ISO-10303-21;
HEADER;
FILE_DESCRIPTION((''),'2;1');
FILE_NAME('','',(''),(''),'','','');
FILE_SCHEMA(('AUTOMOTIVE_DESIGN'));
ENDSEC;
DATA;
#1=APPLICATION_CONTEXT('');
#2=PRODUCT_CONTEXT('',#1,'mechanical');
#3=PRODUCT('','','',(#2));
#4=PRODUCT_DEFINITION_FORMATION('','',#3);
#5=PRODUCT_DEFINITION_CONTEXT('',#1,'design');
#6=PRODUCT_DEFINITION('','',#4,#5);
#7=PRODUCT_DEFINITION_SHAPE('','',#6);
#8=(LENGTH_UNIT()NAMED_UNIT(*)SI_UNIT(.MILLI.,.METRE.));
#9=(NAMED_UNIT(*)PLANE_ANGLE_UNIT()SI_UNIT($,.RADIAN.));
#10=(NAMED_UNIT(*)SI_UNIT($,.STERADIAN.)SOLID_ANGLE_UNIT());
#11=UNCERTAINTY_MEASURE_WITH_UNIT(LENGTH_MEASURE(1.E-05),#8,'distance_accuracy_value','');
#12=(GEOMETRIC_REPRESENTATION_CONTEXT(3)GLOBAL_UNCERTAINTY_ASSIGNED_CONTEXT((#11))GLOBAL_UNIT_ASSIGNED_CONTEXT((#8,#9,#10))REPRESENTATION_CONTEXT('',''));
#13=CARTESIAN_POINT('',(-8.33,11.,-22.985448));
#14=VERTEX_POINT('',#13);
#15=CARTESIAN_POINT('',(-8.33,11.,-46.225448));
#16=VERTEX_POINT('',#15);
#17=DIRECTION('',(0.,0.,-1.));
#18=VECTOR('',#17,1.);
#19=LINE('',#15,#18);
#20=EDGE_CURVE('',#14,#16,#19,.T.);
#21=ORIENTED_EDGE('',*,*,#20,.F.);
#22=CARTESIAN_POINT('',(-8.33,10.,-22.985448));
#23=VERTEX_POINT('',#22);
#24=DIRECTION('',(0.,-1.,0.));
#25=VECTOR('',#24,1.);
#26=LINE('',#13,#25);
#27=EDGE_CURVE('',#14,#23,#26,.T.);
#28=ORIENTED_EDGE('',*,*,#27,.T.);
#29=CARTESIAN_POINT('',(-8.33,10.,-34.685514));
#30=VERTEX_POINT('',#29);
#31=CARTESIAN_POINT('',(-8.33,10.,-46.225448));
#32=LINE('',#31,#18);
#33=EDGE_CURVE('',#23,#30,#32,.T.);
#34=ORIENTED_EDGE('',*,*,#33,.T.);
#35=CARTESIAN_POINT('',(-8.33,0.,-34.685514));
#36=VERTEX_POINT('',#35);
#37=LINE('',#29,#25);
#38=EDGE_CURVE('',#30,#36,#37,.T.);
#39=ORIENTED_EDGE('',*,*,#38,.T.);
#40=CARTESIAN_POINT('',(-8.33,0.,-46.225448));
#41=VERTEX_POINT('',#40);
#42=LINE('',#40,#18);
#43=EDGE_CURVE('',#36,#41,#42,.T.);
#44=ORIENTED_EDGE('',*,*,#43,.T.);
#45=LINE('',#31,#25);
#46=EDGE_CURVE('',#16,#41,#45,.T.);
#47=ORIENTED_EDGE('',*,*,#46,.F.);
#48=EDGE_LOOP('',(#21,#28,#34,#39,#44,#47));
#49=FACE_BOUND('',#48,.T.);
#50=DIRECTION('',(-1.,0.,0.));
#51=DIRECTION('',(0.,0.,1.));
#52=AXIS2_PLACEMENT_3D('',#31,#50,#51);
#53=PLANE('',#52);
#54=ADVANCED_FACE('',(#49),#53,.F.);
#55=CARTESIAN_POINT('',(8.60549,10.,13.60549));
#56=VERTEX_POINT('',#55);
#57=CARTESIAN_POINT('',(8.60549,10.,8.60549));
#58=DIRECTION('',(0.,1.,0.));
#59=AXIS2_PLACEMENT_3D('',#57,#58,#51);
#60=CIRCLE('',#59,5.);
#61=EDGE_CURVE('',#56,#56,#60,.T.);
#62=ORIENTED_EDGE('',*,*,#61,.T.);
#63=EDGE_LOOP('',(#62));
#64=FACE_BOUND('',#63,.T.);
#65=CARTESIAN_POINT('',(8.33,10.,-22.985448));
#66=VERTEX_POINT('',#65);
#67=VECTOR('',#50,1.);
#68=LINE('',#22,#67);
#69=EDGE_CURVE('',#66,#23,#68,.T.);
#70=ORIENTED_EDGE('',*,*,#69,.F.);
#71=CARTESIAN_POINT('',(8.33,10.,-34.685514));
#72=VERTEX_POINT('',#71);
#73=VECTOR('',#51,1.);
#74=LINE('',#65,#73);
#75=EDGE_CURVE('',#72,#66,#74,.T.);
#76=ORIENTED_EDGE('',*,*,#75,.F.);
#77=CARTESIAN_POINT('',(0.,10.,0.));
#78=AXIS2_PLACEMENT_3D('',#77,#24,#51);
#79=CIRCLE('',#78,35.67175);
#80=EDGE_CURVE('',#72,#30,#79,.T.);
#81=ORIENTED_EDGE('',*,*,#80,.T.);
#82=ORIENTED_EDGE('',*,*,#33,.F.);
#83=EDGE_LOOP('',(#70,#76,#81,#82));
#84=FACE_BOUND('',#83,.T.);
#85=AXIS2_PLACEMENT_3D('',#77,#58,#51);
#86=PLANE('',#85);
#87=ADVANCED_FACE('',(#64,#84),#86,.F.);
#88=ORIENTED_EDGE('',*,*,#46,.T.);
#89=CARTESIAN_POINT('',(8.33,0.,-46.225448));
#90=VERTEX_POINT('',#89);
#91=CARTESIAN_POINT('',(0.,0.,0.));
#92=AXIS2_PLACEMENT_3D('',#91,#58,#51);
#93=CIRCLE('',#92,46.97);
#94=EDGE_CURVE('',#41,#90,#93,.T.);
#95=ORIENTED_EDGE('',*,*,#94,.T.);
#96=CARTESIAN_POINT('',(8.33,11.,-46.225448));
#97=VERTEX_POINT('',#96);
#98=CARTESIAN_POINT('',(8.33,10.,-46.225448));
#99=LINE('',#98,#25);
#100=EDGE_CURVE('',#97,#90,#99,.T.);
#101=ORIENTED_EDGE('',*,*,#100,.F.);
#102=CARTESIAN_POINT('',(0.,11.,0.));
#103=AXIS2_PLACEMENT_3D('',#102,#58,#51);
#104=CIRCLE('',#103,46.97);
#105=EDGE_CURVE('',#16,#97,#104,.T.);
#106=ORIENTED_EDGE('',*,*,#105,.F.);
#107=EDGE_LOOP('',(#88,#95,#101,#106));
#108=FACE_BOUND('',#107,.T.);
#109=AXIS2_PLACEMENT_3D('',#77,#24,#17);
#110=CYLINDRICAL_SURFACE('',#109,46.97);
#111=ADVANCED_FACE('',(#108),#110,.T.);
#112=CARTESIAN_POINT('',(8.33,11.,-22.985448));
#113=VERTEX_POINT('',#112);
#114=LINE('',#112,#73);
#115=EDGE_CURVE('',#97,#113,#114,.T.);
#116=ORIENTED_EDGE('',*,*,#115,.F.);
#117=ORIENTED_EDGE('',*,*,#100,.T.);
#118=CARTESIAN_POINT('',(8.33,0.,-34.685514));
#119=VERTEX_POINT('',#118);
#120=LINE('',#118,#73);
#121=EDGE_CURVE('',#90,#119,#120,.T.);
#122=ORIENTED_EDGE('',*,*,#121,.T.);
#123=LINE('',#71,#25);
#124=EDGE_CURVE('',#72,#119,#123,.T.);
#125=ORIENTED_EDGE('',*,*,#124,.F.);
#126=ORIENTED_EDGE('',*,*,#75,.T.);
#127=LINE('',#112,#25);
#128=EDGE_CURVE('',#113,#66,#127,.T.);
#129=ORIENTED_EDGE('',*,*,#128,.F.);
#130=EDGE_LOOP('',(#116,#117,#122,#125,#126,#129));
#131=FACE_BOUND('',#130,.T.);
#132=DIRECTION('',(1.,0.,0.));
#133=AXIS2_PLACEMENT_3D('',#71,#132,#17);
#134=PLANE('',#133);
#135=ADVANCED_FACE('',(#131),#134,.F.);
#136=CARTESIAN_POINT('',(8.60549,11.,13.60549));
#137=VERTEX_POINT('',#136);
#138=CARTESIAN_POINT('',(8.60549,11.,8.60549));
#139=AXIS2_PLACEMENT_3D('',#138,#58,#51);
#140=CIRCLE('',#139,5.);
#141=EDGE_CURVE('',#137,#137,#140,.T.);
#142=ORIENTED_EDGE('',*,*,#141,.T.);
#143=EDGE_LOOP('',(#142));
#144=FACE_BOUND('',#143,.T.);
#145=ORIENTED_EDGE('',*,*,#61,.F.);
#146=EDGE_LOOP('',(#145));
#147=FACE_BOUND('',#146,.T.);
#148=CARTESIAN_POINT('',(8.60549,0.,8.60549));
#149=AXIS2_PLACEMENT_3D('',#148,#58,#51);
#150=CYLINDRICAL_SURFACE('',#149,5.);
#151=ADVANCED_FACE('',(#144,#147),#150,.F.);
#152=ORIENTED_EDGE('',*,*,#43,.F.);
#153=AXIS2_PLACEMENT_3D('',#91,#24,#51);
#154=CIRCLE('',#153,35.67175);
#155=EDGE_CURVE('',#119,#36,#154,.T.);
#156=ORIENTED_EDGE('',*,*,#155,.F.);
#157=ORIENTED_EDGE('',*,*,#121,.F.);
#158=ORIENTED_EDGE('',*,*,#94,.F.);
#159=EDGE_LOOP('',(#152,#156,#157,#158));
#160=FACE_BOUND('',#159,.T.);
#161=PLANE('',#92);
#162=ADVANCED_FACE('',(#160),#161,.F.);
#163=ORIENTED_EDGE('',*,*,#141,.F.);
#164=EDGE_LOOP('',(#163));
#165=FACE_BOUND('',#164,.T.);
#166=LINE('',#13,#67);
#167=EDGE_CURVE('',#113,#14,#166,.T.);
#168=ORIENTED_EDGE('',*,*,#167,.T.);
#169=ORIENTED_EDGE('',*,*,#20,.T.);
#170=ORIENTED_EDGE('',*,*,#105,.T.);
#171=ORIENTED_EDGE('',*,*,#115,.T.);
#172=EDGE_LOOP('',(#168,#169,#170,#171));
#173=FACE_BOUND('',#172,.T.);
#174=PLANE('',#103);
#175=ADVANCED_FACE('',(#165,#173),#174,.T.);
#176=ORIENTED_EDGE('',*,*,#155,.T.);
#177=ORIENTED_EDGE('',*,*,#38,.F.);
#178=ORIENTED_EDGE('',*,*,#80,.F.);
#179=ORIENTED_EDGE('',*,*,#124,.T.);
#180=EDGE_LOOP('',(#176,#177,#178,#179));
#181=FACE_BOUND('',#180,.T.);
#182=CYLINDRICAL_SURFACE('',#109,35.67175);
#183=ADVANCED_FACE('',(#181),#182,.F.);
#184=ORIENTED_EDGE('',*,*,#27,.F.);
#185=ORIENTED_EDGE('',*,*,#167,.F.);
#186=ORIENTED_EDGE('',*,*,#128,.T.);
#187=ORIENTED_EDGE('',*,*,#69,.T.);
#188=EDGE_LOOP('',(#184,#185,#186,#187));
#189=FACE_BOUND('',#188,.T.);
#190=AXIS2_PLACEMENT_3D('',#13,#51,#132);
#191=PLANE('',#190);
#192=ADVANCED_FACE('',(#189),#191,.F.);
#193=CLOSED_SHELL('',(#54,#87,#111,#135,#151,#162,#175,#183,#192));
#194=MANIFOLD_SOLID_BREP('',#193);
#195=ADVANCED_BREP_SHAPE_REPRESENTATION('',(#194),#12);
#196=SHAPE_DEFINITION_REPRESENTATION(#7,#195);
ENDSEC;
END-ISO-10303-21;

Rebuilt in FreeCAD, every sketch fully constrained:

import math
import FreeCAD as App
import Part
import Sketcher
from FreeCAD import Vector

doc = App.newDocument("Part")
body = doc.addObject("PartDesign::Body", "Body")

sketch1 = doc.addObject("Sketcher::SketchObject", "Sketch")
body.addObject(sketch1)
sketch1.AttachmentSupport = (doc.XZ_Plane, [""])
sketch1.MapMode = "FlatFace"
sketch1.addGeometry(Part.LineSegment(Vector(-8, -35, 0), Vector(-8, -46, 0)), False)
sketch1.addGeometry(Part.ArcOfCircle(Part.Circle(Vector(0, 0, 0), Vector(0, 0, 1), 47), math.radians(-80), math.radians(260)), False)
sketch1.addGeometry(Part.LineSegment(Vector(8, -46, 0), Vector(8, -35, 0)), False)
sketch1.addGeometry(Part.ArcOfCircle(Part.Circle(Vector(0, 0, 0), Vector(0, 0, 1), 36), math.radians(-76), math.radians(256)), False)
sketch1.addConstraint(Sketcher.Constraint("Coincident", 0, 2, 1, 2))
sketch1.addConstraint(Sketcher.Constraint("Coincident", 1, 1, 2, 1))
sketch1.addConstraint(Sketcher.Constraint("Coincident", 2, 2, 3, 1))
sketch1.addConstraint(Sketcher.Constraint("Coincident", 3, 2, 0, 1))
sketch1.addConstraint(Sketcher.Constraint("Vertical", 0))
sketch1.addConstraint(Sketcher.Constraint("Vertical", 2))
sketch1.addConstraint(Sketcher.Constraint("Coincident", 1, 3, -1, 1))
sketch1.addConstraint(Sketcher.Constraint("Coincident", 3, 3, -1, 1))
sketch1.addConstraint(Sketcher.Constraint("Horizontal", 0, 2, 1, 1))
sketch1.addConstraint(Sketcher.Constraint("Radius", 1, 46.97))
sketch1.addConstraint(Sketcher.Constraint("DistanceX", 0, 2, -1, 1, 8.33))
sketch1.addConstraint(Sketcher.Constraint("Radius", 3, 35.67175))
pad1 = doc.addObject("PartDesign::Pad", "Pad")
body.addObject(pad1)
pad1.Profile = sketch1
pad1.Length = 10
pad1.Reversed = True

sketch2 = doc.addObject("Sketcher::SketchObject", "Sketch001")
body.addObject(sketch2)
sketch2.AttachmentSupport = (doc.XZ_Plane, [""])
sketch2.MapMode = "FlatFace"
sketch2.AttachmentOffset = App.Placement(Vector(0, 0, -10), App.Rotation())
sketch2.addGeometry(Part.LineSegment(Vector(-8, -23, 0), Vector(-8, -46, 0)), False)
sketch2.addGeometry(Part.ArcOfCircle(Part.Circle(Vector(0, 0, 0), Vector(0, 0, 1), 47), math.radians(-80), math.radians(260)), False)
sketch2.addGeometry(Part.LineSegment(Vector(8, -46, 0), Vector(8, -23, 0)), False)
sketch2.addGeometry(Part.LineSegment(Vector(8, -23, 0), Vector(-8, -23, 0)), False)
sketch2.addConstraint(Sketcher.Constraint("Coincident", 0, 2, 1, 2))
sketch2.addConstraint(Sketcher.Constraint("Coincident", 1, 1, 2, 1))
sketch2.addConstraint(Sketcher.Constraint("Coincident", 2, 2, 3, 1))
sketch2.addConstraint(Sketcher.Constraint("Coincident", 3, 2, 0, 1))
sketch2.addConstraint(Sketcher.Constraint("Vertical", 0))
sketch2.addConstraint(Sketcher.Constraint("Vertical", 2))
sketch2.addConstraint(Sketcher.Constraint("Horizontal", 3))
sketch2.addConstraint(Sketcher.Constraint("Coincident", 1, 3, -1, 1))
sketch2.addConstraint(Sketcher.Constraint("Horizontal", 0, 2, 1, 1))
sketch2.addConstraint(Sketcher.Constraint("Radius", 1, 46.97))
sketch2.addConstraint(Sketcher.Constraint("DistanceX", 3, 2, 3, 1, 16.66))
sketch2.addConstraint(Sketcher.Constraint("DistanceY", 0, 2, 0, 1, 23.24))
pad2 = doc.addObject("PartDesign::Pad", "Pad001")
body.addObject(pad2)
pad2.Profile = sketch2
pad2.Length = 1
pad2.Reversed = True

sketch3 = doc.addObject("Sketcher::SketchObject", "Sketch002")
body.addObject(sketch3)
sketch3.AttachmentSupport = (doc.XZ_Plane, [""])
sketch3.MapMode = "FlatFace"
sketch3.AttachmentOffset = App.Placement(Vector(0, 0, -11), App.Rotation())
sketch3.addGeometry(Part.Circle(Vector(9, 9, 0), Vector(0, 0, 1), 5), False)
sketch3.addConstraint(Sketcher.Constraint("Diameter", 0, 10.0))
sketch3.addConstraint(Sketcher.Constraint("DistanceX", -1, 1, 0, 3, 8.60549))
sketch3.addConstraint(Sketcher.Constraint("DistanceY", -1, 1, 0, 3, 8.60549))
pocket1 = doc.addObject("PartDesign::Pocket", "Pocket")
body.addObject(pocket1)
pocket1.Profile = sketch3
pocket1.Type = "ThroughAll"
pocket1.Reversed = True

doc.recompute()
